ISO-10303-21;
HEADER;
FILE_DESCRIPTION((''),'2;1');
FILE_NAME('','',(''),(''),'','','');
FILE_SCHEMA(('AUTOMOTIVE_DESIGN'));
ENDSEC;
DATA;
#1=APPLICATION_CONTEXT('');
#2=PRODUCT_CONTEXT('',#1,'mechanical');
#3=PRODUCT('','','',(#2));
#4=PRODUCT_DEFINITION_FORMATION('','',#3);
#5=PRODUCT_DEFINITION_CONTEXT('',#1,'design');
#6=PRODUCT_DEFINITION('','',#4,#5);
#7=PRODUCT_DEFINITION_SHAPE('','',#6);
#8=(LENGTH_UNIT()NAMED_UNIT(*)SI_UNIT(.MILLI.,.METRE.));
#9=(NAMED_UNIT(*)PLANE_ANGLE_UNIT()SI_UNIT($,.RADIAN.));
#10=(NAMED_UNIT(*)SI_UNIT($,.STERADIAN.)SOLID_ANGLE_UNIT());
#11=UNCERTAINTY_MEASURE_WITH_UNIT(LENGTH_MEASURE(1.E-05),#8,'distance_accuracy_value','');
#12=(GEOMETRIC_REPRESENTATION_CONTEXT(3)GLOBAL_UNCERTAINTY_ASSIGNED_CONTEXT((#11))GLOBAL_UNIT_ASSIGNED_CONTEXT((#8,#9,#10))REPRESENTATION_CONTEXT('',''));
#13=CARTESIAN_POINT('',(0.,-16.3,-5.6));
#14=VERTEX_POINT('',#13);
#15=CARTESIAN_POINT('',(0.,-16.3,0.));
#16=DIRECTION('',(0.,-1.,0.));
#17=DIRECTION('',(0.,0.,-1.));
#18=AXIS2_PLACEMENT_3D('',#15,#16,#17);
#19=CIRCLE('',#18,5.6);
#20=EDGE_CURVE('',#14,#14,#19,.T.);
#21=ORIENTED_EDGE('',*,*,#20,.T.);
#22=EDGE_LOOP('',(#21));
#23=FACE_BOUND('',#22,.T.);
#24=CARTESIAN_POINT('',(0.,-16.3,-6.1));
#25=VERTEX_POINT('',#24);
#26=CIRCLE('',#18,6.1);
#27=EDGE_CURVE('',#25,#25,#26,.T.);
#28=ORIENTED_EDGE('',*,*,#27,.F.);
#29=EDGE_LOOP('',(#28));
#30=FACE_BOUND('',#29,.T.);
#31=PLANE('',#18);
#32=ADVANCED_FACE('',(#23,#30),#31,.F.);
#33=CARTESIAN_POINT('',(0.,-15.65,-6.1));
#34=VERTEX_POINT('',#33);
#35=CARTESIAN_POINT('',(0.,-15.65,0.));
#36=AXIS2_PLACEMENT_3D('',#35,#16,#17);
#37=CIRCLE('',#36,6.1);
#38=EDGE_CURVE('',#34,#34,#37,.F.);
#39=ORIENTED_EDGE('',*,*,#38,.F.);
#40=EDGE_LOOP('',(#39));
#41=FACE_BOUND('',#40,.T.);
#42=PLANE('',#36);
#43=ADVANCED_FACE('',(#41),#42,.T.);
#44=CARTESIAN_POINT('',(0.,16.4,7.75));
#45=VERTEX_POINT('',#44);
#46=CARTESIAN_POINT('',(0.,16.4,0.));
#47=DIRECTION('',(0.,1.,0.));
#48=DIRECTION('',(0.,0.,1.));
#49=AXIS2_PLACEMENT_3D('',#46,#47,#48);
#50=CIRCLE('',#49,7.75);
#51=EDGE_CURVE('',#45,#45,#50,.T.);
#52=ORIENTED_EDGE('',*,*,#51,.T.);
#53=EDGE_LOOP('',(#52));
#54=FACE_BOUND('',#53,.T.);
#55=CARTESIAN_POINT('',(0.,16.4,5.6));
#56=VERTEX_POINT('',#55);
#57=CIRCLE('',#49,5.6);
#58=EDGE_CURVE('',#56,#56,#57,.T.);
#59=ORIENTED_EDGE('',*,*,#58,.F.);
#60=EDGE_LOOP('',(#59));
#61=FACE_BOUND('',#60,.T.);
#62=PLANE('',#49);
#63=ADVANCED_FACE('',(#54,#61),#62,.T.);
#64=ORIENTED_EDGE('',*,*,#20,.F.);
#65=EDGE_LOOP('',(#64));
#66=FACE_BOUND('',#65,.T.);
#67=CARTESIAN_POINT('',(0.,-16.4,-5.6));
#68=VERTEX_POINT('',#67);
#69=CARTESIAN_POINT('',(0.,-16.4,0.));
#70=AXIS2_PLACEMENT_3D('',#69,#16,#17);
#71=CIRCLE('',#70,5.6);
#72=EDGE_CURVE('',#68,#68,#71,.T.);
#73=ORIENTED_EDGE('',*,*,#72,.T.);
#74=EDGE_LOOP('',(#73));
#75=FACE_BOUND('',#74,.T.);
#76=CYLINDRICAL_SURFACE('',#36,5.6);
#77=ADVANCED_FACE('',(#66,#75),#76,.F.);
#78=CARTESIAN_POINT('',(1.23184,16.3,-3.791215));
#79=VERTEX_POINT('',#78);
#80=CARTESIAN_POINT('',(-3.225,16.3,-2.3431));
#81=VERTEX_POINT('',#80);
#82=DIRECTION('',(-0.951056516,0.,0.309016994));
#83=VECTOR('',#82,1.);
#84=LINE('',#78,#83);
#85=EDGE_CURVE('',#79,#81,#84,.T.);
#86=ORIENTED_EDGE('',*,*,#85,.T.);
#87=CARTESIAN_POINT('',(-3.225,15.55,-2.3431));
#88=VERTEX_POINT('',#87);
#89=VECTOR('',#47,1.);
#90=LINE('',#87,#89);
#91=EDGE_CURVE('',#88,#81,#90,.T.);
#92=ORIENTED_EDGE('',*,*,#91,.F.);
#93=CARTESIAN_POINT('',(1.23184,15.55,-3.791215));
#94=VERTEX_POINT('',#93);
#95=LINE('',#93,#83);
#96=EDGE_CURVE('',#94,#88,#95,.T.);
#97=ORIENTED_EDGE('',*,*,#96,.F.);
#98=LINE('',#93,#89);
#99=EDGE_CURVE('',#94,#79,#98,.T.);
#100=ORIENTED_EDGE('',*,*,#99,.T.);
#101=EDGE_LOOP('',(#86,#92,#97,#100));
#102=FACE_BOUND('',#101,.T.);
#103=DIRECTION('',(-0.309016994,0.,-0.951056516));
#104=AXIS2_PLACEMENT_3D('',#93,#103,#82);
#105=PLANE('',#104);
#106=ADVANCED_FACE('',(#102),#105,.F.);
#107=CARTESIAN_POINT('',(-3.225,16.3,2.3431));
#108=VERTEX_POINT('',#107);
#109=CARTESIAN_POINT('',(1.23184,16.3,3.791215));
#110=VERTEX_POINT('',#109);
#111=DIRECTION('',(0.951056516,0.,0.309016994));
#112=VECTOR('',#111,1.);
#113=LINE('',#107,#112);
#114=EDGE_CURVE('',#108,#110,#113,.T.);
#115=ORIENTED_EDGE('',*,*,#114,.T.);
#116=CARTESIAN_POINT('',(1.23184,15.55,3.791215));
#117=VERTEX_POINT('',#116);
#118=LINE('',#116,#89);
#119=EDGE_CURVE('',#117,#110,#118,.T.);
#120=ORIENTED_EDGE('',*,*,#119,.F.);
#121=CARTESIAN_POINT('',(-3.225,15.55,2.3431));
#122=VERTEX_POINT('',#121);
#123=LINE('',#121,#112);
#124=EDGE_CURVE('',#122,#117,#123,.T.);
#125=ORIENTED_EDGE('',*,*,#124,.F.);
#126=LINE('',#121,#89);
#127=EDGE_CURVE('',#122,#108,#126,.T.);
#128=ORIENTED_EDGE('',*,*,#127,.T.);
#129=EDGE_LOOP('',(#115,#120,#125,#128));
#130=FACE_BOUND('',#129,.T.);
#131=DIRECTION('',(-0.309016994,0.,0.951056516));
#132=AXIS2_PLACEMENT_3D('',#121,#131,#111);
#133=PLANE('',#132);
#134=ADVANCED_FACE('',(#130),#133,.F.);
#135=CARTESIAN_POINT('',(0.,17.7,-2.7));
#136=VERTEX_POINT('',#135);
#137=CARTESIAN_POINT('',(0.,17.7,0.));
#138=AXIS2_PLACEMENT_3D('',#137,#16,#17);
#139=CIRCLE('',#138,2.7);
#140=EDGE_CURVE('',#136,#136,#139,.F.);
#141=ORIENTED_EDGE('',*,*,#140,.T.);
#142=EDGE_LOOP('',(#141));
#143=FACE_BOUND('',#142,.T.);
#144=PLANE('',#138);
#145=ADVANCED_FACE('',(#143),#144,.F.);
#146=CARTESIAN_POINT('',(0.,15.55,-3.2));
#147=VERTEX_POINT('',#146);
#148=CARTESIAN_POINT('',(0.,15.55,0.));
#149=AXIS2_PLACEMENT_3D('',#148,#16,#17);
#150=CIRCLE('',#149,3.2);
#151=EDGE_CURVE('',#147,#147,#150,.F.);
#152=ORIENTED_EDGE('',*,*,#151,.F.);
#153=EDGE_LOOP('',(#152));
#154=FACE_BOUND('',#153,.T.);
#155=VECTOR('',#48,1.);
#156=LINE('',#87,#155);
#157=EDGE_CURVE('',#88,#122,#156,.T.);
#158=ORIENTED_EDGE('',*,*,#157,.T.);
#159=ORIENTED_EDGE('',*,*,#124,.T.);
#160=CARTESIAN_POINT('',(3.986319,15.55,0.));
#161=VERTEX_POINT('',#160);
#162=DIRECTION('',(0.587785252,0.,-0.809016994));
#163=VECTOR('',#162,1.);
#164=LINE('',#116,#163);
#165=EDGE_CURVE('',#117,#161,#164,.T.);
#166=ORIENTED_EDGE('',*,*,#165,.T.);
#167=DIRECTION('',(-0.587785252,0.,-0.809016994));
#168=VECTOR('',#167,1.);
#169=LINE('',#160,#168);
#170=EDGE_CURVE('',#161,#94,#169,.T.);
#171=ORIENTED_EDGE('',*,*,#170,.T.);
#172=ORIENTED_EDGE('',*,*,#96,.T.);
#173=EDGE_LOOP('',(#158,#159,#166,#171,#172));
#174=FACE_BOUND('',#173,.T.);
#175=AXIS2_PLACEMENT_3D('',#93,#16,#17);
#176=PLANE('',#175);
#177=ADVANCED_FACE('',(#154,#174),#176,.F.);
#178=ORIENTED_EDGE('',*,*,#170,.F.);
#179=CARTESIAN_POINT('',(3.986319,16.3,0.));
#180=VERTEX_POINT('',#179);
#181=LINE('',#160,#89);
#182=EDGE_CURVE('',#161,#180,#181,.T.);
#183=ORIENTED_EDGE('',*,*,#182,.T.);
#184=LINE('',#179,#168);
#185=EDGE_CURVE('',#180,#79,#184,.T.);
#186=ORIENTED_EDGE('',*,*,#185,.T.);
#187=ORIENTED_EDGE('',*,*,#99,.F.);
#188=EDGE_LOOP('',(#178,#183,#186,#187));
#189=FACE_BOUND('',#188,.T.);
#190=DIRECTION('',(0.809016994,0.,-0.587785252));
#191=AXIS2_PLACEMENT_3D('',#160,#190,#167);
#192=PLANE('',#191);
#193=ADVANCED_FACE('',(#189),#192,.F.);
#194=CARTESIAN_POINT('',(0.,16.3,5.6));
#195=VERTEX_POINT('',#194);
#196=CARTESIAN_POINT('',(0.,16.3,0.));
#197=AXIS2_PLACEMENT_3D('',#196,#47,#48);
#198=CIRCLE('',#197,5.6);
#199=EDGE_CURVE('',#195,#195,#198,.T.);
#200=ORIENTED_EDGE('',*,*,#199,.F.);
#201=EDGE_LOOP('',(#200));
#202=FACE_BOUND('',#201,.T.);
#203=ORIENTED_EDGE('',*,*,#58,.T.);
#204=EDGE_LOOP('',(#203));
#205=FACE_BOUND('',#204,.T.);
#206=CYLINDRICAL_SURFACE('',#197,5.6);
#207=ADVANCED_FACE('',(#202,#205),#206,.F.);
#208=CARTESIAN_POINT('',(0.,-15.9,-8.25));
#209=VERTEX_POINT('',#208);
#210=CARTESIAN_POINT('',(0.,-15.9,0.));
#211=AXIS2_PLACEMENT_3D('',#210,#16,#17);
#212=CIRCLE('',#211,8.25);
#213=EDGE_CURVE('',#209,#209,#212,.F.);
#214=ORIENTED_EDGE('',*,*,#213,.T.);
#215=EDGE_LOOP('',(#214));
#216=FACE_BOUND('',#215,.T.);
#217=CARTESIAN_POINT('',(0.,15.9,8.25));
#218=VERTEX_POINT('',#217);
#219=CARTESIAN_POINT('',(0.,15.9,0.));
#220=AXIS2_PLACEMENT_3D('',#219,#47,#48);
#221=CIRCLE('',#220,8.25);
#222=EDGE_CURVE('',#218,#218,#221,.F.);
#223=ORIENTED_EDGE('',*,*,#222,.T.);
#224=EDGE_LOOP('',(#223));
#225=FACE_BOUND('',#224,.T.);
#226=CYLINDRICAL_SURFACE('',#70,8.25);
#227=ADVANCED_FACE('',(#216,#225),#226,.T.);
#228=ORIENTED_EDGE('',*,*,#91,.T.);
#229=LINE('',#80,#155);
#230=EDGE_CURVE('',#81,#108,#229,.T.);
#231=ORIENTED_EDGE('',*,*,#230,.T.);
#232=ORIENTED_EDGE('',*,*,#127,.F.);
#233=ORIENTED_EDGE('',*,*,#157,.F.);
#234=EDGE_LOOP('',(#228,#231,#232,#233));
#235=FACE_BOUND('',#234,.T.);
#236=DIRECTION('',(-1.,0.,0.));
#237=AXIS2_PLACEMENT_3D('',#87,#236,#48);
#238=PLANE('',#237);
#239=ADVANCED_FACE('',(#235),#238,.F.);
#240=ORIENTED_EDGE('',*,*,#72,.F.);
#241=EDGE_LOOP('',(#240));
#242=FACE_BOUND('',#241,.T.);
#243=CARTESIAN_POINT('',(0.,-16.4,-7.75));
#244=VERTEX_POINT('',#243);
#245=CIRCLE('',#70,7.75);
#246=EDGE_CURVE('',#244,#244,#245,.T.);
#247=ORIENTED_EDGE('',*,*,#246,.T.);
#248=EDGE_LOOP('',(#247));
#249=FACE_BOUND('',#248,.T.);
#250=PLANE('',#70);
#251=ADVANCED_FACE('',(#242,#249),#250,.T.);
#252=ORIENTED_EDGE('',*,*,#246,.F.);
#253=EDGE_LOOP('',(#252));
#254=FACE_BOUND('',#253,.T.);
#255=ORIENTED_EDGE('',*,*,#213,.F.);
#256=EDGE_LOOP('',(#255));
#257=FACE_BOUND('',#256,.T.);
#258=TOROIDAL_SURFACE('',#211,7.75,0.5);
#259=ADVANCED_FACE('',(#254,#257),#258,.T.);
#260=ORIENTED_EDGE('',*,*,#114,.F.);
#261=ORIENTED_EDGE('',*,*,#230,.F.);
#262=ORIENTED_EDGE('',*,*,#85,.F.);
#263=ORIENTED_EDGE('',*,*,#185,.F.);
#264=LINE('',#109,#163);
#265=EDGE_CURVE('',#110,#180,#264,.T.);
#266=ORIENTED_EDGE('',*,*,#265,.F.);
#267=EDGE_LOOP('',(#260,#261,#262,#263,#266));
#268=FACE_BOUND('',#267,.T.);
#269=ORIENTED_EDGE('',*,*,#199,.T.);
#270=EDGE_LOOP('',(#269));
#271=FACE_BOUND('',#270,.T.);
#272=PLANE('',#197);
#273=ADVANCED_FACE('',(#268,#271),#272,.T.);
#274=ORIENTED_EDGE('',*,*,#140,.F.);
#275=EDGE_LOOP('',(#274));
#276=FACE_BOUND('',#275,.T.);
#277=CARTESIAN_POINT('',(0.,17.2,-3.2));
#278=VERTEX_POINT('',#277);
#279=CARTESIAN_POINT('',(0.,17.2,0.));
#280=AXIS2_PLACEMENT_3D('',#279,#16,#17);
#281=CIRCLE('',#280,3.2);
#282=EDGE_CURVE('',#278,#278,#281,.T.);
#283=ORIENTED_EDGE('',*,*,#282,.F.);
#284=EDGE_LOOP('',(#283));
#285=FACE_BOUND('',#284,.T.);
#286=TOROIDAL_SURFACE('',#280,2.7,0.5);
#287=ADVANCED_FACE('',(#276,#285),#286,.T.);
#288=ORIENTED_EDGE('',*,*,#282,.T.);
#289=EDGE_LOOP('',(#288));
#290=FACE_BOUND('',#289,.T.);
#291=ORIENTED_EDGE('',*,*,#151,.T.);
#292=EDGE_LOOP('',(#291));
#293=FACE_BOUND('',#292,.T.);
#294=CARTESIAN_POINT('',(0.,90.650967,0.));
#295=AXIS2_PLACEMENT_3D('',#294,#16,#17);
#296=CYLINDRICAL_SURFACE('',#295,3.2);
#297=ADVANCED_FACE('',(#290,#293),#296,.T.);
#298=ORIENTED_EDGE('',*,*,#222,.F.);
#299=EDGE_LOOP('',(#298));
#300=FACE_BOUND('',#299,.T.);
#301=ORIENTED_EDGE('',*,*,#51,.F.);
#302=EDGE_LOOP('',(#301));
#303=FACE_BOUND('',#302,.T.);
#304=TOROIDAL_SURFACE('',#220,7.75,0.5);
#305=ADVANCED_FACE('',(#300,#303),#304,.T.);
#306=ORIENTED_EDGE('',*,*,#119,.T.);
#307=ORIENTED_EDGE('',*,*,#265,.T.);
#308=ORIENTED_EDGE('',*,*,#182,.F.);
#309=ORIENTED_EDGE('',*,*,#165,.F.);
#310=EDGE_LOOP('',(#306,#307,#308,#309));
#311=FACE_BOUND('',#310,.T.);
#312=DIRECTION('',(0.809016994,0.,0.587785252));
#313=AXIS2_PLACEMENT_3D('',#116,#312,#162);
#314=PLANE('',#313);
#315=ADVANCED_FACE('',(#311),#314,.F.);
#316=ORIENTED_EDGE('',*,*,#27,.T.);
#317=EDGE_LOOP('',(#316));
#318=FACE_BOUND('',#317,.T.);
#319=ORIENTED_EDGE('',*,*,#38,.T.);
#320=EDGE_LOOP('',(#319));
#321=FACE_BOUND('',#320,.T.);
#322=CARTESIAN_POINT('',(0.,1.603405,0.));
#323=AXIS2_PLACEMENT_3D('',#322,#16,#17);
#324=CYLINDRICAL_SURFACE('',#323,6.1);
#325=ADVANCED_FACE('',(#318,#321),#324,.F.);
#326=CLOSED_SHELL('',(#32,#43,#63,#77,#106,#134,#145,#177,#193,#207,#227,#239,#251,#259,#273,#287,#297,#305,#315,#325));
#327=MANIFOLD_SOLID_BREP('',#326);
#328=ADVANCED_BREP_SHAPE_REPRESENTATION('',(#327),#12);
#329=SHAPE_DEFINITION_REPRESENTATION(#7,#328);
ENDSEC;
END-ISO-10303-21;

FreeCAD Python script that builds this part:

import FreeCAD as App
import Part
import Sketcher

V = App.Vector
Q = App.Units.Quantity


def edges_at(feature, points):
    """Names of the edges that pass closest to the given points."""
    edges = feature.Shape.Edges
    near = lambda p: min(range(len(edges)), key=lambda i: edges[i].distToShape(Part.Vertex(*p))[0])
    return sorted({f"Edge{near(p) + 1}" for p in points})

doc = App.newDocument("Part")
params = doc.addObject("Spreadsheet::Sheet", "Params")
for row, (alias, value) in enumerate([
    ("sketch1_height", "32.8 mm"),
    ("sketch1_width", "8.25 mm"),
    ("revolution_angle", "360 deg"),
    ("sketch2_diameter", "11.2 mm"),
    ("pocket1_length", "0.75 mm"),
    ("sketch3_diameter", "11.2 mm"),
    ("pocket2_length", "0.1 mm"),
    ("pocket3_length", "0.75 mm"),
    ("sketch5_diameter", "6.4 mm"),
    ("pad1_length", "2.15 mm"),
    ("fillet_radius", "0.5 mm"),
    ("sketch6_diameter", "12.2 mm"),
    ("sketch6_diameter2", "11.2 mm"),
    ("pocket4_length", "0.65 mm"),
    ("fillet2_radius", "0.5 mm"),
], start=1):
    params.set(f"A{row}", alias)
    params.set(f"B{row}", "=" + value)
    params.setAlias(f"B{row}", alias)

body = doc.addObject("PartDesign::Body", "Body")

sketch1 = body.newObject("Sketcher::SketchObject", "Sketch")
sketch1.AttachmentSupport = (doc.getObject("XY_Plane"), [""])
sketch1.MapMode = "FlatFace"
sketch1.addGeometry(Part.LineSegment(V(0, 16.4, 0), V(0, -16.4, 0)), False)
sketch1.addGeometry(Part.LineSegment(V(0, -16.4, 0), V(8.25, -16.4, 0)), False)
sketch1.addGeometry(Part.LineSegment(V(8.25, -16.4, 0), V(8.25, 16.4, 0)), False)
sketch1.addGeometry(Part.LineSegment(V(8.25, 16.4, 0), V(0, 16.4, 0)), False)
sketch1.addConstraint(Sketcher.Constraint("Coincident", 0, 2, 1, 1))
sketch1.addConstraint(Sketcher.Constraint("Coincident", 1, 2, 2, 1))
sketch1.addConstraint(Sketcher.Constraint("Coincident", 2, 2, 3, 1))
sketch1.addConstraint(Sketcher.Constraint("Coincident", 3, 2, 0, 1))
sketch1.addConstraint(Sketcher.Constraint("Vertical", 0))
sketch1.addConstraint(Sketcher.Constraint("Horizontal", 1))
sketch1.addConstraint(Sketcher.Constraint("Vertical", 2))
sketch1.addConstraint(Sketcher.Constraint("Horizontal", 3))
sketch1.addConstraint(Sketcher.Constraint("Symmetric", 0, 2, 3, 2, -1, 1))
sketch1.addConstraint(Sketcher.Constraint("DistanceY", 0, 2, 0, 1, Q("32.8 mm")))
sketch1.addConstraint(Sketcher.Constraint("DistanceX", 1, 1, 1, 2, Q("8.25 mm")))
sketch1.setExpression("Constraints[9]", "Params.sketch1_height")
sketch1.setExpression("Constraints[10]", "Params.sketch1_width")
revolution = body.newObject("PartDesign::Revolution", "Revolution")
revolution.Profile = sketch1
revolution.ReferenceAxis = (sketch1, ["V_Axis"])
revolution.setExpression("Angle", "Params.revolution_angle")

sketch2 = body.newObject("Sketcher::SketchObject", "Sketch001")
sketch2.AttachmentSupport = (doc.getObject("XZ_Plane"), [""])
sketch2.MapMode = "FlatFace"
sketch2.AttachmentOffset = App.Placement(V(0, 0, 16.4), App.Rotation())
sketch2.addGeometry(Part.Circle(V(0, 0, 0), V(0, 0, 1), 5.6), False)
sketch2.addConstraint(Sketcher.Constraint("Coincident", 0, 3, -1, 1))
sketch2.addConstraint(Sketcher.Constraint("Diameter", 0, Q("11.2 mm")))
sketch2.setExpression("Constraints[1]", "Params.sketch2_diameter")
pocket1 = body.newObject("PartDesign::Pocket", "Pocket")
pocket1.Profile = sketch2
pocket1.setExpression("Length", "Params.pocket1_length")

sketch3 = body.newObject("Sketcher::SketchObject", "Sketch002")
sketch3.AttachmentSupport = (doc.getObject("XZ_Plane"), [""])
sketch3.MapMode = "FlatFace"
sketch3.AttachmentOffset = App.Placement(V(0, 0, -16.3), App.Rotation())
sketch3.addGeometry(Part.Circle(V(0, 0, 0), V(0, 0, 1), 5.6), False)
sketch3.addConstraint(Sketcher.Constraint("Coincident", 0, 3, -1, 1))
sketch3.addConstraint(Sketcher.Constraint("Diameter", 0, Q("11.2 mm")))
sketch3.setExpression("Constraints[1]", "Params.sketch3_diameter")
pocket2 = body.newObject("PartDesign::Pocket", "Pocket001")
pocket2.Profile = sketch3
pocket2.setExpression("Length", "Params.pocket2_length")

sketch4 = body.newObject("Sketcher::SketchObject", "Sketch003")
sketch4.AttachmentSupport = (doc.getObject("XZ_Plane"), [""])
sketch4.MapMode = "FlatFace"
sketch4.AttachmentOffset = App.Placement(V(0, 0, -16.3), App.Rotation())
sketch4.addGeometry(Part.LineSegment(V(-3.225, -2.3431, 0), V(-3.225, 2.3431, 0)), False)
sketch4.addGeometry(Part.LineSegment(V(-3.225, 2.3431, 0), V(1.23184, 3.791215, 0)), False)
sketch4.addGeometry(Part.LineSegment(V(1.23184, 3.791215, 0), V(3.986319, 0, 0)), False)
sketch4.addGeometry(Part.LineSegment(V(3.986319, 0, 0), V(1.23184, -3.791215, 0)), False)
sketch4.addGeometry(Part.LineSegment(V(1.23184, -3.791215, 0), V(-3.225, -2.3431, 0)), False)
sketch4.addConstraint(Sketcher.Constraint("Coincident", 0, 2, 1, 1))
sketch4.addConstraint(Sketcher.Constraint("Coincident", 1, 2, 2, 1))
sketch4.addConstraint(Sketcher.Constraint("Coincident", 2, 2, 3, 1))
sketch4.addConstraint(Sketcher.Constraint("Coincident", 3, 2, 4, 1))
sketch4.addConstraint(Sketcher.Constraint("Coincident", 4, 2, 0, 1))
sketch4.addConstraint(Sketcher.Constraint("Vertical", 0))
sketch4.addConstraint(Sketcher.Constraint("Symmetric", 1, 2, 3, 2, -1))
sketch4.addConstraint(Sketcher.Constraint("PointOnObject", 2, 2, -1))
sketch4.addConstraint(Sketcher.Constraint("Equal", 1, 2))
sketch4.addConstraint(Sketcher.Constraint("Equal", 3, 4))
sketch4.addConstraint(Sketcher.Constraint("Angle", 1, Q("18 deg")))
sketch4.addConstraint(Sketcher.Constraint("Angle", 2, Q("-54 deg")))
sketch4.addConstraint(Sketcher.Constraint("DistanceY", 0, 1, 0, 2, Q("4.686199 mm")))
sketch4.addConstraint(Sketcher.Constraint("DistanceX", 0, 2, -1, 1, Q("3.225 mm")))
pocket3 = body.newObject("PartDesign::Pocket", "Pocket002")
pocket3.Profile = sketch4
pocket3.setExpression("Length", "Params.pocket3_length")
pocket3.Reversed = True

sketch5 = body.newObject("Sketcher::SketchObject", "Sketch004")
sketch5.AttachmentSupport = (doc.getObject("XZ_Plane"), [""])
sketch5.MapMode = "FlatFace"
sketch5.AttachmentOffset = App.Placement(V(0, 0, -15.55), App.Rotation())
sketch5.addGeometry(Part.Circle(V(0, 0, 0), V(0, 0, 1), 3.2), False)
sketch5.addConstraint(Sketcher.Constraint("Coincident", 0, 3, -1, 1))
sketch5.addConstraint(Sketcher.Constraint("Diameter", 0, Q("6.4 mm")))
sketch5.setExpression("Constraints[1]", "Params.sketch5_diameter")
pad1 = body.newObject("PartDesign::Pad", "Pad")
pad1.Profile = sketch5
pad1.setExpression("Length", "Params.pad1_length")
pad1.Reversed = True
doc.recompute()

fillet = body.newObject("PartDesign::Fillet", "Fillet")
fillet.Base = (pad1, edges_at(pad1, [(0, 17.7, 3.2)]))
fillet.setExpression("Radius", "Params.fillet_radius")

sketch6 = body.newObject("Sketcher::SketchObject", "Sketch005")
sketch6.AttachmentSupport = (doc.getObject("XZ_Plane"), [""])
sketch6.MapMode = "FlatFace"
sketch6.AttachmentOffset = App.Placement(V(0, 0, 16.3), App.Rotation())
sketch6.addGeometry(Part.Circle(V(0, 0, 0), V(0, 0, 1), 6.1), False)
sketch6.addGeometry(Part.Circle(V(0, 0, 0), V(0, 0, 1), 5.6), False)
sketch6.addConstraint(Sketcher.Constraint("Coincident", 0, 3, -1, 1))
sketch6.addConstraint(Sketcher.Constraint("Coincident", 1, 3, -1, 1))
sketch6.addConstraint(Sketcher.Constraint("Diameter", 0, Q("12.2 mm")))
sketch6.addConstraint(Sketcher.Constraint("Diameter", 1, Q("11.2 mm")))
sketch6.setExpression("Constraints[2]", "Params.sketch6_diameter")
sketch6.setExpression("Constraints[3]", "Params.sketch6_diameter2")
pocket4 = body.newObject("PartDesign::Pocket", "Pocket003")
pocket4.Profile = sketch6
pocket4.setExpression("Length", "Params.pocket4_length")
doc.recompute()

fillet2 = body.newObject("PartDesign::Fillet", "Fillet001")
fillet2.Base = (pocket4, edges_at(pocket4, [(0, -16.4, 8.25), (0, 16.4, 8.25)]))
fillet2.setExpression("Radius", "Params.fillet2_radius")

doc.recompute()
